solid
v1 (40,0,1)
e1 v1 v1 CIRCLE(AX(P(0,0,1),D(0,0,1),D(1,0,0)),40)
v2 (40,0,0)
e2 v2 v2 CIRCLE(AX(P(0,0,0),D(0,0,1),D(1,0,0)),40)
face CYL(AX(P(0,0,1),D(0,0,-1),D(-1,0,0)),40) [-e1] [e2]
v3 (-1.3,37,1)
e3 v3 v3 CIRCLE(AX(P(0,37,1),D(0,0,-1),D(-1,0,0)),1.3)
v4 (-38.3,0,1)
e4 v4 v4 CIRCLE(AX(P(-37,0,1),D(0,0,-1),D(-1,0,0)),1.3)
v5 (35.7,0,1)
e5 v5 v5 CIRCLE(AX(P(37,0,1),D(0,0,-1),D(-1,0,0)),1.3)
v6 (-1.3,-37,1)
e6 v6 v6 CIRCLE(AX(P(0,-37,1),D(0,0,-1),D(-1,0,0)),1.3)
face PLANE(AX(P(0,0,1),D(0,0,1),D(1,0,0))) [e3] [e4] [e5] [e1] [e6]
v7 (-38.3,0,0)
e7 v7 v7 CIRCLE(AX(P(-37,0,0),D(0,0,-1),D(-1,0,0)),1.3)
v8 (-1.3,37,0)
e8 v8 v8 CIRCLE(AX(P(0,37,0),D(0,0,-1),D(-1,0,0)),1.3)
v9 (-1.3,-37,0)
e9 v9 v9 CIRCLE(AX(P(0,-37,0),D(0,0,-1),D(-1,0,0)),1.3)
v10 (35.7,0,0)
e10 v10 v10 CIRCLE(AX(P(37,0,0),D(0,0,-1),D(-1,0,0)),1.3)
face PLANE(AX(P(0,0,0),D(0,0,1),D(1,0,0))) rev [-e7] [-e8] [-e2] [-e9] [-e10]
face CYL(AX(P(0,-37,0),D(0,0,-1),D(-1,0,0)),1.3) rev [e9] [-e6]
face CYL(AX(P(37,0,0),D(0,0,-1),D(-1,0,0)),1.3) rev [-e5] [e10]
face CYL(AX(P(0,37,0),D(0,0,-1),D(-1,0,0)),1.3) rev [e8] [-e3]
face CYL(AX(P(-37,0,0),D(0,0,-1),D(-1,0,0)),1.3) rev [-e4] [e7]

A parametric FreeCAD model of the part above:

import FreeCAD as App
import Part
import Sketcher
from FreeCAD import Vector

doc = App.newDocument("Part")
body = doc.addObject("PartDesign::Body", "Body")

# Sketch on XY plane
sketch1 = body.newObject("Sketcher::SketchObject", "Sketch")
sketch1.AttachmentSupport = (doc.getObject("XY_Plane"), [""])
sketch1.MapMode = "FlatFace"
sketch1.addGeometry(Part.Circle(Vector(0, 0, 0), Vector(0, 0, 1), 40), False)
sketch1.addConstraint([
    Sketcher.Constraint("Coincident", 0, 3, -1, 1),
    Sketcher.Constraint("Diameter", 0, 80.0),
])
pad1 = body.newObject("PartDesign::Pad", "Pad")
pad1.Profile = sketch1
pad1.Length = 1

# Sketch on XY plane
sketch2 = body.newObject("Sketcher::SketchObject", "Sketch001")
sketch2.AttachmentSupport = (doc.getObject("XY_Plane"), [""])
sketch2.MapMode = "FlatFace"
sketch2.addGeometry(Part.Circle(Vector(0, 37, 0), Vector(0, 0, 1), 1.3), False)
sketch2.addConstraint([
    Sketcher.Constraint("PointOnObject", 0, 3, -2),
    Sketcher.Constraint("Diameter", 0, 2.6),
    Sketcher.Constraint("DistanceY", -1, 1, 0, 3, 37.0),
])
doc.recompute()
hole = body.newObject("PartDesign::Hole", "Hole")
hole.Profile = sketch2
hole.ThreadType = "None"
hole.Diameter = 2.6
hole.DepthType = "ThroughAll"
hole.Reversed = True
doc.recompute()

polarpattern = body.newObject("PartDesign::PolarPattern", "PolarPattern")
polarpattern.Originals = [hole]
polarpattern.Axis = (doc.getObject("Z_Axis"), [""])
polarpattern.Angle = 360
polarpattern.Occurrences = 4
body.Tip = polarpattern

doc.recompute()
